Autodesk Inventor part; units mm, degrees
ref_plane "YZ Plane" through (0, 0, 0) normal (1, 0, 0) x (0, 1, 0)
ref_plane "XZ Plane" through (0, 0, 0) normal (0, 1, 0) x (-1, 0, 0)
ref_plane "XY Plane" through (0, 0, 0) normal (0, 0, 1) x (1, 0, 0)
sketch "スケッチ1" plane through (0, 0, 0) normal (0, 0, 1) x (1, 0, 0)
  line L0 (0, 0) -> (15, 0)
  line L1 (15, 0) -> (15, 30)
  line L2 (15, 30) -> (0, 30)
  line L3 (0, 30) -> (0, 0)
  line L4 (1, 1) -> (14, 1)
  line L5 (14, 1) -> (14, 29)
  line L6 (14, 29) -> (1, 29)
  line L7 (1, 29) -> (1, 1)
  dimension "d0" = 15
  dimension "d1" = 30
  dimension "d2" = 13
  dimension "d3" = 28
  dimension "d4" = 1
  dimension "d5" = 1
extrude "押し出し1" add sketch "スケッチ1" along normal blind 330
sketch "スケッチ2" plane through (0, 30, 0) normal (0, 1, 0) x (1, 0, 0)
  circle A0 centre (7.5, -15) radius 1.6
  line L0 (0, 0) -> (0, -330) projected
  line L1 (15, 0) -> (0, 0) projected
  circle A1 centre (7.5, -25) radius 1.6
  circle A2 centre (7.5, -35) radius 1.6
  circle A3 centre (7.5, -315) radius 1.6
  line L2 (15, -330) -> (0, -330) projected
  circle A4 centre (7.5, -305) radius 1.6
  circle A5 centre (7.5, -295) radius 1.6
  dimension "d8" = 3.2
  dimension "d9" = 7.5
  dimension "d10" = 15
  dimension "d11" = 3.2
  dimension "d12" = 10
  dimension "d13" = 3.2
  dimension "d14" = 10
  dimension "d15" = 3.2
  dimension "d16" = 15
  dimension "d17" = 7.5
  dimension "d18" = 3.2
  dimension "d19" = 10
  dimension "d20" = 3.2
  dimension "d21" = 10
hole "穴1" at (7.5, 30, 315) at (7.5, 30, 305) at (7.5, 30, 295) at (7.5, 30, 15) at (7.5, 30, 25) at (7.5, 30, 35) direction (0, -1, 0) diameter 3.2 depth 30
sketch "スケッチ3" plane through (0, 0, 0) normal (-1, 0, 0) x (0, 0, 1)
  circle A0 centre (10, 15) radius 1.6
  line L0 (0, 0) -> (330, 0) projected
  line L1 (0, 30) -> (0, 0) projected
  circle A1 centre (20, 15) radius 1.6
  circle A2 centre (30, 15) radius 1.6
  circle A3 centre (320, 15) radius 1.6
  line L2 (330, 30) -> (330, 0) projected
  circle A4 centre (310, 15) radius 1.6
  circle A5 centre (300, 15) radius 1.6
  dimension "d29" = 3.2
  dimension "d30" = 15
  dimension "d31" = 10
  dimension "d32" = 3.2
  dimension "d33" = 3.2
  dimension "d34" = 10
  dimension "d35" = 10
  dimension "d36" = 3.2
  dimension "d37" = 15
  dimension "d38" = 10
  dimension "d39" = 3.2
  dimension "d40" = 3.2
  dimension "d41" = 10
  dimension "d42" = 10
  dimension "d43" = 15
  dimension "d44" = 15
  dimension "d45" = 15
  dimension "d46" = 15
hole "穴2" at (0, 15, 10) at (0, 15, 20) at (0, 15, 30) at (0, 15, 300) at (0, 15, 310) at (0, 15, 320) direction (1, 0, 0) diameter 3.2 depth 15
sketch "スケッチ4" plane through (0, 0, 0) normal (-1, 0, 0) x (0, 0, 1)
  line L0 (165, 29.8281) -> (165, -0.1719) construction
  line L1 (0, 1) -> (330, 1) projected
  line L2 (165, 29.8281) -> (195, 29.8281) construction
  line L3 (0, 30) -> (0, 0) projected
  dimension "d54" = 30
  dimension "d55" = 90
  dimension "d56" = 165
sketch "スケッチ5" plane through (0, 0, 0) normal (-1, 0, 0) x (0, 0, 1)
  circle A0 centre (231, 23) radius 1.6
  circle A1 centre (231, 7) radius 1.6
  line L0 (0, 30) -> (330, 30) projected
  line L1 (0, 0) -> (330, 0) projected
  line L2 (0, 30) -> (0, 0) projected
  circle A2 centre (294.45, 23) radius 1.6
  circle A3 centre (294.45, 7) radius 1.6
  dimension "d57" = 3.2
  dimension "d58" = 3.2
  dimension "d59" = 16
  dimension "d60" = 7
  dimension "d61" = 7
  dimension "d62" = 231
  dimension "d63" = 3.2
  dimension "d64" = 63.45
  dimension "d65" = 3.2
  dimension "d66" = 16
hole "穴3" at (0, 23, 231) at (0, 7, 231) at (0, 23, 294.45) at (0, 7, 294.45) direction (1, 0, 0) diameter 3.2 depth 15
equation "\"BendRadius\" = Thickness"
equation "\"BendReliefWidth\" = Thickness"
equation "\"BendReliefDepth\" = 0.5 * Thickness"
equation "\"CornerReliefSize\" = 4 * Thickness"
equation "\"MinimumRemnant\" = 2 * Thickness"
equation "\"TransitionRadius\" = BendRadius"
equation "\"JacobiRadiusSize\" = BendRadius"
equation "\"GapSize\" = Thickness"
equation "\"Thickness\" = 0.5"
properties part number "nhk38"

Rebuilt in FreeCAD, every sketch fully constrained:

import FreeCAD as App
import Part
import Sketcher

V = App.Vector
Q = App.Units.Quantity


def add_polygon(sketch, points):
    """Adds a closed chain of lines whose ends are joined by coincident constraints."""
    first, n = sketch.GeometryCount, len(points)
    for a, b in zip(points, points[1:] + points[:1]):
        sketch.addGeometry(Part.LineSegment(App.Vector(*a, 0), App.Vector(*b, 0)), False)
    for i in range(n):
        sketch.addConstraint(Sketcher.Constraint("Coincident", first + i, 2, first + (i + 1) % n, 1))

doc = App.newDocument("Part")
body = doc.addObject("PartDesign::Body", "Body")

sketch1 = body.newObject("Sketcher::SketchObject", "Sketch")
sketch1.AttachmentSupport = (doc.getObject("XY_Plane"), [""])
sketch1.MapMode = "FlatFace"
add_polygon(sketch1, [(0, 30), (0, 0), (15, 0), (15, 30)])
add_polygon(sketch1, [(14, 1), (1, 1), (1, 29), (14, 29)])
sketch1.addConstraint([
    Sketcher.Constraint("Vertical", 0),
    Sketcher.Constraint("Horizontal", 1),
    Sketcher.Constraint("Vertical", 2),
    Sketcher.Constraint("Horizontal", 3),
    Sketcher.Constraint("Horizontal", 4),
    Sketcher.Constraint("Vertical", 5),
    Sketcher.Constraint("Horizontal", 6),
    Sketcher.Constraint("Vertical", 7),
    Sketcher.Constraint("Coincident", 0, 2, -1, 1),
    Sketcher.Constraint("DistanceX", 1, 1, 1, 2, Q("15 mm")),
    Sketcher.Constraint("DistanceX", 4, 2, 4, 1, Q("13 mm")),
    Sketcher.Constraint("DistanceY", 0, 2, 0, 1, Q("30 mm")),
    Sketcher.Constraint("DistanceY", 5, 1, 5, 2, Q("28 mm")),
    Sketcher.Constraint("DistanceX", -1, 1, 4, 2, Q("1 mm")),
    Sketcher.Constraint("DistanceY", -1, 1, 4, 2, Q("1 mm")),
])
pad1 = body.newObject("PartDesign::Pad", "Pad")
pad1.Profile = sketch1
pad1.Length = 330

sketch2 = body.newObject("Sketcher::SketchObject", "Sketch001")
sketch2.AttachmentSupport = (doc.getObject("XZ_Plane"), [""])
sketch2.MapMode = "FlatFace"
sketch2.AttachmentOffset = App.Placement(V(0, 0, -30), App.Rotation())
sketch2.addGeometry([
    Part.Circle(V(7.5, 315, 0), V(0, 0, 1), 1.6),
    Part.Circle(V(7.5, 305, 0), V(0, 0, 1), 1.6),
    Part.Circle(V(7.5, 295, 0), V(0, 0, 1), 1.6),
    Part.Circle(V(7.5, 15, 0), V(0, 0, 1), 1.6),
    Part.Circle(V(7.5, 25, 0), V(0, 0, 1), 1.6),
    Part.Circle(V(7.5, 35, 0), V(0, 0, 1), 1.6),
], False)
sketch2.addConstraint([
    Sketcher.Constraint("Equal", 0, 1),
    Sketcher.Constraint("Equal", 1, 2),
    Sketcher.Constraint("Equal", 2, 3),
    Sketcher.Constraint("Equal", 3, 4),
    Sketcher.Constraint("Equal", 4, 5),
    Sketcher.Constraint("Vertical", 0, 3, 1, 3),
    Sketcher.Constraint("Vertical", 1, 3, 2, 3),
    Sketcher.Constraint("Vertical", 2, 3, 3, 3),
    Sketcher.Constraint("Vertical", 3, 3, 4, 3),
    Sketcher.Constraint("Vertical", 4, 3, 5, 3),
    Sketcher.Constraint("Diameter", 0, Q("3.2 mm")),
    Sketcher.Constraint("DistanceY", -1, 1, 0, 3, Q("315 mm")),
    Sketcher.Constraint("DistanceY", -1, 1, 1, 3, Q("305 mm")),
    Sketcher.Constraint("DistanceY", -1, 1, 2, 3, Q("295 mm")),
    Sketcher.Constraint("DistanceY", -1, 1, 3, 3, Q("15 mm")),
    Sketcher.Constraint("DistanceY", -1, 1, 4, 3, Q("25 mm")),
    Sketcher.Constraint("DistanceY", -1, 1, 5, 3, Q("35 mm")),
    Sketcher.Constraint("DistanceX", -1, 1, 0, 3, Q("7.5 mm")),
])
doc.recompute()
hole = body.newObject("PartDesign::Hole", "Hole")
hole.Profile = sketch2
hole.ThreadType = "None"
hole.Diameter = 3.2
hole.DepthType = "Dimension"
hole.Depth = 30
hole.DrillPoint = "Flat"
hole.Reversed = True

sketch3 = body.newObject("Sketcher::SketchObject", "Sketch002")
sketch3.AttachmentSupport = (doc.getObject("YZ_Plane"), [""])
sketch3.MapMode = "FlatFace"
sketch3.addGeometry([
    Part.Circle(V(15, 10, 0), V(0, 0, 1), 1.6),
    Part.Circle(V(15, 20, 0), V(0, 0, 1), 1.6),
    Part.Circle(V(15, 30, 0), V(0, 0, 1), 1.6),
    Part.Circle(V(15, 300, 0), V(0, 0, 1), 1.6),
    Part.Circle(V(15, 310, 0), V(0, 0, 1), 1.6),
    Part.Circle(V(15, 320, 0), V(0, 0, 1), 1.6),
], False)
sketch3.addConstraint([
    Sketcher.Constraint("Equal", 0, 1),
    Sketcher.Constraint("Equal", 1, 2),
    Sketcher.Constraint("Equal", 2, 3),
    Sketcher.Constraint("Equal", 3, 4),
    Sketcher.Constraint("Equal", 4, 5),
    Sketcher.Constraint("Vertical", 0, 3, 1, 3),
    Sketcher.Constraint("Vertical", 1, 3, 2, 3),
    Sketcher.Constraint("Vertical", 2, 3, 3, 3),
    Sketcher.Constraint("Vertical", 3, 3, 4, 3),
    Sketcher.Constraint("Vertical", 4, 3, 5, 3),
    Sketcher.Constraint("Diameter", 0, Q("3.2 mm")),
    Sketcher.Constraint("DistanceX", -1, 1, 0, 3, Q("15 mm")),
    Sketcher.Constraint("DistanceY", -1, 1, 0, 3, Q("10 mm")),
    Sketcher.Constraint("DistanceY", -1, 1, 1, 3, Q("20 mm")),
    Sketcher.Constraint("DistanceY", -1, 1, 2, 3, Q("30 mm")),
    Sketcher.Constraint("DistanceY", -1, 1, 3, 3, Q("300 mm")),
    Sketcher.Constraint("DistanceY", -1, 1, 4, 3, Q("310 mm")),
    Sketcher.Constraint("DistanceY", -1, 1, 5, 3, Q("320 mm")),
])
doc.recompute()
hole2 = body.newObject("PartDesign::Hole", "Hole001")
hole2.Profile = sketch3
hole2.ThreadType = "None"
hole2.Diameter = 3.2
hole2.DepthType = "Dimension"
hole2.Depth = 15
hole2.DrillPoint = "Flat"
hole2.Reversed = True

sketch4 = body.newObject("Sketcher::SketchObject", "Sketch003")
sketch4.AttachmentSupport = (doc.getObject("YZ_Plane"), [""])
sketch4.MapMode = "FlatFace"
sketch4.addGeometry([
    Part.Circle(V(23, 231, 0), V(0, 0, 1), 1.6),
    Part.Circle(V(7, 231, 0), V(0, 0, 1), 1.6),
    Part.Circle(V(23, 294.4, 0), V(0, 0, 1), 1.6),
    Part.Circle(V(7, 294.4, 0), V(0, 0, 1), 1.6),
], False)
sketch4.addConstraint([
    Sketcher.Constraint("Equal", 0, 1),
    Sketcher.Constraint("Equal", 1, 2),
    Sketcher.Constraint("Equal", 2, 3),
    Sketcher.Constraint("Horizontal", 0, 3, 1, 3),
    Sketcher.Constraint("Horizontal", 2, 3, 3, 3),
    Sketcher.Constraint("Vertical", 0, 3, 2, 3),
    Sketcher.Constraint("Vertical", 1, 3, 3, 3),
    Sketcher.Constraint("Diameter", 0, Q("3.2 mm")),
    Sketcher.Constraint("DistanceX", -1, 1, 0, 3, Q("23 mm")),
    Sketcher.Constraint("DistanceY", -1, 1, 0, 3, Q("231 mm")),
    Sketcher.Constraint("DistanceX", -1, 1, 1, 3, Q("7 mm")),
    Sketcher.Constraint("DistanceY", -1, 1, 2, 3, Q("294.45 mm")),
])
doc.recompute()
hole3 = body.newObject("PartDesign::Hole", "Hole002")
hole3.Profile = sketch4
hole3.ThreadType = "None"
hole3.Diameter = 3.2
hole3.DepthType = "Dimension"
hole3.Depth = 15
hole3.DrillPoint = "Flat"
hole3.Reversed = True

doc.recompute()
